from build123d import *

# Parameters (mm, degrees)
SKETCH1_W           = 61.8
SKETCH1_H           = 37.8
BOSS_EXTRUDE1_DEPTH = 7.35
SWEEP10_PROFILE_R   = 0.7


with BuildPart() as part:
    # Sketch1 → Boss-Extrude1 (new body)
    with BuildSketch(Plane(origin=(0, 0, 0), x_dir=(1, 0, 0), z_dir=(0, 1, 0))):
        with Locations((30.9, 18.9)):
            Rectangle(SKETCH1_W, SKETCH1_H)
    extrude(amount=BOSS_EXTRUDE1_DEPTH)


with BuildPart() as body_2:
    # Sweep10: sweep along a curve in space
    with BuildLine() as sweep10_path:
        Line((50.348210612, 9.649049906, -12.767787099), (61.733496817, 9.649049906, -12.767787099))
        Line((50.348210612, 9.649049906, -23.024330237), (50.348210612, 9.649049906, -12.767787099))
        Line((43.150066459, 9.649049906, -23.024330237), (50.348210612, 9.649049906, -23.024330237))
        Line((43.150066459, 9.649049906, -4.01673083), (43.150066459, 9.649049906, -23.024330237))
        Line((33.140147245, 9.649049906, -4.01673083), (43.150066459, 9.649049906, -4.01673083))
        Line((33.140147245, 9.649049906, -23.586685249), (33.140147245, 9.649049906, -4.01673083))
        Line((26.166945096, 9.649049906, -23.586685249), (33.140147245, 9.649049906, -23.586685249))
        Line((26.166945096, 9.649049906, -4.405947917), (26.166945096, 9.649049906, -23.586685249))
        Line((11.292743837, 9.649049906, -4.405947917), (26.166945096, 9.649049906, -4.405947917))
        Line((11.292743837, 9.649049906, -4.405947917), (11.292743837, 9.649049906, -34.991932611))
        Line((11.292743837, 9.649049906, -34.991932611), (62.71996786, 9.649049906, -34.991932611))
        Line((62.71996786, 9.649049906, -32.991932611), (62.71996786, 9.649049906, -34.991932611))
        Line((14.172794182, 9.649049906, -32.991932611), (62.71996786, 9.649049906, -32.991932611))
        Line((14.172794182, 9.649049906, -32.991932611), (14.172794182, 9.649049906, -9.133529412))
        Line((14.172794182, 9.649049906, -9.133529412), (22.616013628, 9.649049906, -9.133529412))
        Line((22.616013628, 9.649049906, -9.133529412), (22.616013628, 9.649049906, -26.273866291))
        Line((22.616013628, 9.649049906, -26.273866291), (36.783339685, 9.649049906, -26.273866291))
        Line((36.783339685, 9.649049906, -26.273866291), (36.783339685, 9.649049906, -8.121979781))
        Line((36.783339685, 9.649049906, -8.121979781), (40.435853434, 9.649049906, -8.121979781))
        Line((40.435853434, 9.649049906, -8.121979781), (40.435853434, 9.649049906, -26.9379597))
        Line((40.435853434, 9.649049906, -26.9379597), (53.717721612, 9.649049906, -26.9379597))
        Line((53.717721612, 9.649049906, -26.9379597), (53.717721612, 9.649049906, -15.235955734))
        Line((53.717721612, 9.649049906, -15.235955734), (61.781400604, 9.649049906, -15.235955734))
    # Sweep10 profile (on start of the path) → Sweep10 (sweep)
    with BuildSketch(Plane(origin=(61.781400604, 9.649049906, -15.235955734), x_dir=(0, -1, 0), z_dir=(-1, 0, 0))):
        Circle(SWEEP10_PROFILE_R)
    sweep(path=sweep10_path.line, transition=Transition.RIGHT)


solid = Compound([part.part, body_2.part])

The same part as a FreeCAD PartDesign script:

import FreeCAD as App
import Part
import Sketcher
Q = App.Units.Quantity

doc = App.newDocument("Part")
body = doc.addObject("PartDesign::Body", "Body")

# Sketch on XZ plane
sketch1 = body.newObject("Sketcher::SketchObject", "Sketch")
sketch1.AttachmentSupport = (doc.getObject("XZ_Plane"), [""])
sketch1.MapMode = "FlatFace"
sketch1.addGeometry(Part.LineSegment(App.Vector(0, -38, 0), App.Vector(0, 0, 0)), False)
sketch1.addGeometry(Part.LineSegment(App.Vector(0, 0, 0), App.Vector(62, 0, 0)), False)
sketch1.addGeometry(Part.LineSegment(App.Vector(62, 0, 0), App.Vector(62, -38, 0)), False)
sketch1.addGeometry(Part.LineSegment(App.Vector(62, -38, 0), App.Vector(0, -38, 0)), False)
sketch1.addConstraint(Sketcher.Constraint("Coincident", 0, 2, 1, 1))
sketch1.addConstraint(Sketcher.Constraint("Coincident", 1, 2, 2, 1))
sketch1.addConstraint(Sketcher.Constraint("Coincident", 2, 2, 3, 1))
sketch1.addConstraint(Sketcher.Constraint("Coincident", 3, 2, 0, 1))
sketch1.addConstraint(Sketcher.Constraint("Vertical", 0))
sketch1.addConstraint(Sketcher.Constraint("Horizontal", 1))
sketch1.addConstraint(Sketcher.Constraint("Vertical", 2))
sketch1.addConstraint(Sketcher.Constraint("Horizontal", 3))
sketch1.addConstraint(Sketcher.Constraint("Coincident", 0, 2, -1, 1))
sketch1.addConstraint(Sketcher.Constraint("DistanceX", 1, 1, 1, 2, Q("61.8 mm")))
sketch1.addConstraint(Sketcher.Constraint("DistanceY", 0, 1, 0, 2, Q("37.8 mm")))
pad1 = body.newObject("PartDesign::Pad", "Pad")
pad1.Profile = sketch1
pad1.Length = 7.35
pad1.Reversed = True
body2 = doc.addObject("PartDesign::Body", "Body001")

# Sketch on YZ plane
sketch2 = body2.newObject("Sketcher::SketchObject", "Sketch001")
sketch2.AttachmentSupport = (doc.getObject("YZ_Plane001"), [""])
sketch2.MapMode = "FlatFace"
sketch2.AttachmentOffset = App.Placement(App.Vector(0, 0, 61.781401), App.Rotation())
sketch2.addGeometry(Part.Circle(App.Vector(9.6, -15.2, 0), App.Vector(0, 0, 1), 0.7), False)
sketch2.addConstraint(Sketcher.Constraint("Diameter", 0, Q("1.4 mm")))
sketch2.addConstraint(Sketcher.Constraint("DistanceX", -1, 1, 0, 3, Q("9.64905 mm")))
sketch2.addConstraint(Sketcher.Constraint("DistanceY", 0, 3, -1, 1, Q("15.235956 mm")))

# Sketch on XZ plane
sketch3 = body2.newObject("Sketcher::SketchObject", "Sketch002")
sketch3.AttachmentSupport = (doc.getObject("XZ_Plane001"), [""])
sketch3.MapMode = "FlatFace"
sketch3.AttachmentOffset = App.Placement(App.Vector(0, 0, -9.64905), App.Rotation())
sketch3.addGeometry(Part.LineSegment(App.Vector(61.8, -15.2, 0), App.Vector(53.7, -15.2, 0)), False)
sketch3.addGeometry(Part.LineSegment(App.Vector(53.7, -15.2, 0), App.Vector(53.7, -26.9, 0)), False)
sketch3.addGeometry(Part.LineSegment(App.Vector(53.7, -26.9, 0), App.Vector(40.4, -26.9, 0)), False)
sketch3.addGeometry(Part.LineSegment(App.Vector(40.4, -26.9, 0), App.Vector(40.4, -8.1, 0)), False)
sketch3.addGeometry(Part.LineSegment(App.Vector(40.4, -8.1, 0), App.Vector(36.8, -8.1, 0)), False)
sketch3.addGeometry(Part.LineSegment(App.Vector(36.8, -8.1, 0), App.Vector(36.8, -26.3, 0)), False)
sketch3.addGeometry(Part.LineSegment(App.Vector(36.8, -26.3, 0), App.Vector(22.6, -26.3, 0)), False)
sketch3.addGeometry(Part.LineSegment(App.Vector(22.6, -26.3, 0), App.Vector(22.6, -9.1, 0)), False)
sketch3.addGeometry(Part.LineSegment(App.Vector(22.6, -9.1, 0), App.Vector(14.2, -9.1, 0)), False)
sketch3.addGeometry(Part.LineSegment(App.Vector(14.2, -9.1, 0), App.Vector(14.2, -33, 0)), False)
sketch3.addGeometry(Part.LineSegment(App.Vector(14.2, -33, 0), App.Vector(62.7, -33, 0)), False)
sketch3.addGeometry(Part.LineSegment(App.Vector(62.7, -33, 0), App.Vector(62.7, -35, 0)), False)
sketch3.addGeometry(Part.LineSegment(App.Vector(62.7, -35, 0), App.Vector(11.3, -35, 0)), False)
sketch3.addGeometry(Part.LineSegment(App.Vector(11.3, -35, 0), App.Vector(11.3, -4.4, 0)), False)
sketch3.addGeometry(Part.LineSegment(App.Vector(11.3, -4.4, 0), App.Vector(26.2, -4.4, 0)), False)
sketch3.addGeometry(Part.LineSegment(App.Vector(26.2, -4.4, 0), App.Vector(26.2, -23.6, 0)), False)
sketch3.addGeometry(Part.LineSegment(App.Vector(26.2, -23.6, 0), App.Vector(33.1, -23.6, 0)), False)
sketch3.addGeometry(Part.LineSegment(App.Vector(33.1, -23.6, 0), App.Vector(33.1, -4, 0)), False)
sketch3.addGeometry(Part.LineSegment(App.Vector(33.1, -4, 0), App.Vector(43.2, -4, 0)), False)
sketch3.addGeometry(Part.LineSegment(App.Vector(43.2, -4, 0), App.Vector(43.2, -23, 0)), False)
sketch3.addGeometry(Part.LineSegment(App.Vector(43.2, -23, 0), App.Vector(50.3, -23, 0)), False)
sketch3.addGeometry(Part.LineSegment(App.Vector(50.3, -23, 0), App.Vector(50.3, -12.8, 0)), False)
sketch3.addGeometry(Part.LineSegment(App.Vector(50.3, -12.8, 0), App.Vector(61.7, -12.8, 0)), False)
sketch3.addConstraint(Sketcher.Constraint("Coincident", 0, 2, 1, 1))
sketch3.addConstraint(Sketcher.Constraint("Coincident", 1, 2, 2, 1))
sketch3.addConstraint(Sketcher.Constraint("Coincident", 2, 2, 3, 1))
sketch3.addConstraint(Sketcher.Constraint("Coincident", 3, 2, 4, 1))
sketch3.addConstraint(Sketcher.Constraint("Coincident", 4, 2, 5, 1))
sketch3.addConstraint(Sketcher.Constraint("Coincident", 5, 2, 6, 1))
sketch3.addConstraint(Sketcher.Constraint("Coincident", 6, 2, 7, 1))
sketch3.addConstraint(Sketcher.Constraint("Coincident", 7, 2, 8, 1))
sketch3.addConstraint(Sketcher.Constraint("Coincident", 8, 2, 9, 1))
sketch3.addConstraint(Sketcher.Constraint("Coincident", 9, 2, 10, 1))
sketch3.addConstraint(Sketcher.Constraint("Coincident", 10, 2, 11, 1))
sketch3.addConstraint(Sketcher.Constraint("Coincident", 11, 2, 12, 1))
sketch3.addConstraint(Sketcher.Constraint("Coincident", 12, 2, 13, 1))
sketch3.addConstraint(Sketcher.Constraint("Coincident", 13, 2, 14, 1))
sketch3.addConstraint(Sketcher.Constraint("Coincident", 14, 2, 15, 1))
sketch3.addConstraint(Sketcher.Constraint("Coincident", 15, 2, 16, 1))
sketch3.addConstraint(Sketcher.Constraint("Coincident", 16, 2, 17, 1))
sketch3.addConstraint(Sketcher.Constraint("Coincident", 17, 2, 18, 1))
sketch3.addConstraint(Sketcher.Constraint("Coincident", 18, 2, 19, 1))
sketch3.addConstraint(Sketcher.Constraint("Coincident", 19, 2, 20, 1))
sketch3.addConstraint(Sketcher.Constraint("Coincident", 20, 2, 21, 1))
sketch3.addConstraint(Sketcher.Constraint("Coincident", 21, 2, 22, 1))
sketch3.addConstraint(Sketcher.Constraint("Horizontal", 0))
sketch3.addConstraint(Sketcher.Constraint("Vertical", 1))
sketch3.addConstraint(Sketcher.Constraint("Horizontal", 2))
sketch3.addConstraint(Sketcher.Constraint("Vertical", 3))
sketch3.addConstraint(Sketcher.Constraint("Horizontal", 4))
sketch3.addConstraint(Sketcher.Constraint("Vertical", 5))
sketch3.addConstraint(Sketcher.Constraint("Horizontal", 6))
sketch3.addConstraint(Sketcher.Constraint("Vertical", 7))
sketch3.addConstraint(Sketcher.Constraint("Horizontal", 8))
sketch3.addConstraint(Sketcher.Constraint("Vertical", 9))
sketch3.addConstraint(Sketcher.Constraint("Horizontal", 10))
sketch3.addConstraint(Sketcher.Constraint("Vertical", 11))
sketch3.addConstraint(Sketcher.Constraint("Horizontal", 12))
sketch3.addConstraint(Sketcher.Constraint("Vertical", 13))
sketch3.addConstraint(Sketcher.Constraint("Horizontal", 14))
sketch3.addConstraint(Sketcher.Constraint("Vertical", 15))
sketch3.addConstraint(Sketcher.Constraint("Horizontal", 16))
sketch3.addConstraint(Sketcher.Constraint("Vertical", 17))
sketch3.addConstraint(Sketcher.Constraint("Horizontal", 18))
sketch3.addConstraint(Sketcher.Constraint("Vertical", 19))
sketch3.addConstraint(Sketcher.Constraint("Horizontal", 20))
sketch3.addConstraint(Sketcher.Constraint("Vertical", 21))
sketch3.addConstraint(Sketcher.Constraint("Horizontal", 22))
sketch3.addConstraint(Sketcher.Constraint("DistanceY", 11, 2, 11, 1, Q("2 mm")))
sketch3.addConstraint(Sketcher.Constraint("DistanceX", 14, 1, 14, 2, Q("14.874201 mm")))
sketch3.addConstraint(Sketcher.Constraint("DistanceY", 19, 2, 19, 1, Q("19.007599 mm")))
sketch3.addConstraint(Sketcher.Constraint("DistanceX", 0, 2, 0, 1, Q("8.063679 mm")))
sketch3.addConstraint(Sketcher.Constraint("DistanceX", 2, 2, 2, 1, Q("13.281868 mm")))
sketch3.addConstraint(Sketcher.Constraint("DistanceX", 8, 2, 8, 1, Q("8.443219 mm")))
sketch3.addConstraint(Sketcher.Constraint("DistanceX", 18, 1, 18, 2, Q("10.009919 mm")))
sketch3.addConstraint(Sketcher.Constraint("DistanceY", 3, 1, 3, 2, Q("18.81598 mm")))
sketch3.addConstraint(Sketcher.Constraint("DistanceX", -1, 1, 0, 1, Q("61.781401 mm")))
sketch3.addConstraint(Sketcher.Constraint("DistanceY", 7, 2, 17, 2, Q("5.116799 mm")))
sketch3.addConstraint(Sketcher.Constraint("DistanceX", 4, 2, 4, 1, Q("3.652514 mm")))
sketch3.addConstraint(Sketcher.Constraint("DistanceX", 6, 2, 6, 1, Q("14.167326 mm")))
sketch3.addConstraint(Sketcher.Constraint("DistanceX", 10, 1, 10, 2, Q("48.547174 mm")))
sketch3.addConstraint(Sketcher.Constraint("DistanceX", 12, 2, 12, 1, Q("51.427224 mm")))
sketch3.addConstraint(Sketcher.Constraint("DistanceX", 16, 1, 16, 2, Q("6.973202 mm")))
sketch3.addConstraint(Sketcher.Constraint("DistanceX", 20, 1, 20, 2, Q("7.198144 mm")))
sketch3.addConstraint(Sketcher.Constraint("DistanceX", 22, 1, 22, 2, Q("11.385286 mm")))
sketch3.addConstraint(Sketcher.Constraint("DistanceY", 1, 2, 1, 1, Q("11.702004 mm")))
sketch3.addConstraint(Sketcher.Constraint("DistanceY", 5, 2, 5, 1, Q("18.151887 mm")))
sketch3.addConstraint(Sketcher.Constraint("DistanceY", 7, 1, 7, 2, Q("17.140337 mm")))
sketch3.addConstraint(Sketcher.Constraint("DistanceY", 9, 2, 9, 1, Q("23.858403 mm")))
sketch3.addConstraint(Sketcher.Constraint("DistanceY", 13, 1, 13, 2, Q("30.585985 mm")))
sketch3.addConstraint(Sketcher.Constraint("DistanceY", 15, 2, 15, 1, Q("19.180737 mm")))
sketch3.addConstraint(Sketcher.Constraint("DistanceY", 21, 1, 21, 2, Q("10.256543 mm")))
sketch3.addConstraint(Sketcher.Constraint("DistanceY", 1, 2, -1, 1, Q("26.93796 mm")))
doc.recompute()

additivepipe = body2.newObject("PartDesign::AdditivePipe", "AdditivePipe")
additivepipe.Profile = sketch2
additivepipe.Spine = (sketch3, ["Edge1", "Edge2", "Edge3", "Edge4", "Edge5", "Edge6", "Edge7", "Edge8", "Edge9", "Edge10", "Edge11", "Edge12", "Edge13", "Edge14", "Edge15", "Edge16", "Edge17", "Edge18", "Edge19", "Edge20", "Edge21", "Edge22", "Edge23"])
additivepipe.Transition = "Right corner"

doc.recompute()
